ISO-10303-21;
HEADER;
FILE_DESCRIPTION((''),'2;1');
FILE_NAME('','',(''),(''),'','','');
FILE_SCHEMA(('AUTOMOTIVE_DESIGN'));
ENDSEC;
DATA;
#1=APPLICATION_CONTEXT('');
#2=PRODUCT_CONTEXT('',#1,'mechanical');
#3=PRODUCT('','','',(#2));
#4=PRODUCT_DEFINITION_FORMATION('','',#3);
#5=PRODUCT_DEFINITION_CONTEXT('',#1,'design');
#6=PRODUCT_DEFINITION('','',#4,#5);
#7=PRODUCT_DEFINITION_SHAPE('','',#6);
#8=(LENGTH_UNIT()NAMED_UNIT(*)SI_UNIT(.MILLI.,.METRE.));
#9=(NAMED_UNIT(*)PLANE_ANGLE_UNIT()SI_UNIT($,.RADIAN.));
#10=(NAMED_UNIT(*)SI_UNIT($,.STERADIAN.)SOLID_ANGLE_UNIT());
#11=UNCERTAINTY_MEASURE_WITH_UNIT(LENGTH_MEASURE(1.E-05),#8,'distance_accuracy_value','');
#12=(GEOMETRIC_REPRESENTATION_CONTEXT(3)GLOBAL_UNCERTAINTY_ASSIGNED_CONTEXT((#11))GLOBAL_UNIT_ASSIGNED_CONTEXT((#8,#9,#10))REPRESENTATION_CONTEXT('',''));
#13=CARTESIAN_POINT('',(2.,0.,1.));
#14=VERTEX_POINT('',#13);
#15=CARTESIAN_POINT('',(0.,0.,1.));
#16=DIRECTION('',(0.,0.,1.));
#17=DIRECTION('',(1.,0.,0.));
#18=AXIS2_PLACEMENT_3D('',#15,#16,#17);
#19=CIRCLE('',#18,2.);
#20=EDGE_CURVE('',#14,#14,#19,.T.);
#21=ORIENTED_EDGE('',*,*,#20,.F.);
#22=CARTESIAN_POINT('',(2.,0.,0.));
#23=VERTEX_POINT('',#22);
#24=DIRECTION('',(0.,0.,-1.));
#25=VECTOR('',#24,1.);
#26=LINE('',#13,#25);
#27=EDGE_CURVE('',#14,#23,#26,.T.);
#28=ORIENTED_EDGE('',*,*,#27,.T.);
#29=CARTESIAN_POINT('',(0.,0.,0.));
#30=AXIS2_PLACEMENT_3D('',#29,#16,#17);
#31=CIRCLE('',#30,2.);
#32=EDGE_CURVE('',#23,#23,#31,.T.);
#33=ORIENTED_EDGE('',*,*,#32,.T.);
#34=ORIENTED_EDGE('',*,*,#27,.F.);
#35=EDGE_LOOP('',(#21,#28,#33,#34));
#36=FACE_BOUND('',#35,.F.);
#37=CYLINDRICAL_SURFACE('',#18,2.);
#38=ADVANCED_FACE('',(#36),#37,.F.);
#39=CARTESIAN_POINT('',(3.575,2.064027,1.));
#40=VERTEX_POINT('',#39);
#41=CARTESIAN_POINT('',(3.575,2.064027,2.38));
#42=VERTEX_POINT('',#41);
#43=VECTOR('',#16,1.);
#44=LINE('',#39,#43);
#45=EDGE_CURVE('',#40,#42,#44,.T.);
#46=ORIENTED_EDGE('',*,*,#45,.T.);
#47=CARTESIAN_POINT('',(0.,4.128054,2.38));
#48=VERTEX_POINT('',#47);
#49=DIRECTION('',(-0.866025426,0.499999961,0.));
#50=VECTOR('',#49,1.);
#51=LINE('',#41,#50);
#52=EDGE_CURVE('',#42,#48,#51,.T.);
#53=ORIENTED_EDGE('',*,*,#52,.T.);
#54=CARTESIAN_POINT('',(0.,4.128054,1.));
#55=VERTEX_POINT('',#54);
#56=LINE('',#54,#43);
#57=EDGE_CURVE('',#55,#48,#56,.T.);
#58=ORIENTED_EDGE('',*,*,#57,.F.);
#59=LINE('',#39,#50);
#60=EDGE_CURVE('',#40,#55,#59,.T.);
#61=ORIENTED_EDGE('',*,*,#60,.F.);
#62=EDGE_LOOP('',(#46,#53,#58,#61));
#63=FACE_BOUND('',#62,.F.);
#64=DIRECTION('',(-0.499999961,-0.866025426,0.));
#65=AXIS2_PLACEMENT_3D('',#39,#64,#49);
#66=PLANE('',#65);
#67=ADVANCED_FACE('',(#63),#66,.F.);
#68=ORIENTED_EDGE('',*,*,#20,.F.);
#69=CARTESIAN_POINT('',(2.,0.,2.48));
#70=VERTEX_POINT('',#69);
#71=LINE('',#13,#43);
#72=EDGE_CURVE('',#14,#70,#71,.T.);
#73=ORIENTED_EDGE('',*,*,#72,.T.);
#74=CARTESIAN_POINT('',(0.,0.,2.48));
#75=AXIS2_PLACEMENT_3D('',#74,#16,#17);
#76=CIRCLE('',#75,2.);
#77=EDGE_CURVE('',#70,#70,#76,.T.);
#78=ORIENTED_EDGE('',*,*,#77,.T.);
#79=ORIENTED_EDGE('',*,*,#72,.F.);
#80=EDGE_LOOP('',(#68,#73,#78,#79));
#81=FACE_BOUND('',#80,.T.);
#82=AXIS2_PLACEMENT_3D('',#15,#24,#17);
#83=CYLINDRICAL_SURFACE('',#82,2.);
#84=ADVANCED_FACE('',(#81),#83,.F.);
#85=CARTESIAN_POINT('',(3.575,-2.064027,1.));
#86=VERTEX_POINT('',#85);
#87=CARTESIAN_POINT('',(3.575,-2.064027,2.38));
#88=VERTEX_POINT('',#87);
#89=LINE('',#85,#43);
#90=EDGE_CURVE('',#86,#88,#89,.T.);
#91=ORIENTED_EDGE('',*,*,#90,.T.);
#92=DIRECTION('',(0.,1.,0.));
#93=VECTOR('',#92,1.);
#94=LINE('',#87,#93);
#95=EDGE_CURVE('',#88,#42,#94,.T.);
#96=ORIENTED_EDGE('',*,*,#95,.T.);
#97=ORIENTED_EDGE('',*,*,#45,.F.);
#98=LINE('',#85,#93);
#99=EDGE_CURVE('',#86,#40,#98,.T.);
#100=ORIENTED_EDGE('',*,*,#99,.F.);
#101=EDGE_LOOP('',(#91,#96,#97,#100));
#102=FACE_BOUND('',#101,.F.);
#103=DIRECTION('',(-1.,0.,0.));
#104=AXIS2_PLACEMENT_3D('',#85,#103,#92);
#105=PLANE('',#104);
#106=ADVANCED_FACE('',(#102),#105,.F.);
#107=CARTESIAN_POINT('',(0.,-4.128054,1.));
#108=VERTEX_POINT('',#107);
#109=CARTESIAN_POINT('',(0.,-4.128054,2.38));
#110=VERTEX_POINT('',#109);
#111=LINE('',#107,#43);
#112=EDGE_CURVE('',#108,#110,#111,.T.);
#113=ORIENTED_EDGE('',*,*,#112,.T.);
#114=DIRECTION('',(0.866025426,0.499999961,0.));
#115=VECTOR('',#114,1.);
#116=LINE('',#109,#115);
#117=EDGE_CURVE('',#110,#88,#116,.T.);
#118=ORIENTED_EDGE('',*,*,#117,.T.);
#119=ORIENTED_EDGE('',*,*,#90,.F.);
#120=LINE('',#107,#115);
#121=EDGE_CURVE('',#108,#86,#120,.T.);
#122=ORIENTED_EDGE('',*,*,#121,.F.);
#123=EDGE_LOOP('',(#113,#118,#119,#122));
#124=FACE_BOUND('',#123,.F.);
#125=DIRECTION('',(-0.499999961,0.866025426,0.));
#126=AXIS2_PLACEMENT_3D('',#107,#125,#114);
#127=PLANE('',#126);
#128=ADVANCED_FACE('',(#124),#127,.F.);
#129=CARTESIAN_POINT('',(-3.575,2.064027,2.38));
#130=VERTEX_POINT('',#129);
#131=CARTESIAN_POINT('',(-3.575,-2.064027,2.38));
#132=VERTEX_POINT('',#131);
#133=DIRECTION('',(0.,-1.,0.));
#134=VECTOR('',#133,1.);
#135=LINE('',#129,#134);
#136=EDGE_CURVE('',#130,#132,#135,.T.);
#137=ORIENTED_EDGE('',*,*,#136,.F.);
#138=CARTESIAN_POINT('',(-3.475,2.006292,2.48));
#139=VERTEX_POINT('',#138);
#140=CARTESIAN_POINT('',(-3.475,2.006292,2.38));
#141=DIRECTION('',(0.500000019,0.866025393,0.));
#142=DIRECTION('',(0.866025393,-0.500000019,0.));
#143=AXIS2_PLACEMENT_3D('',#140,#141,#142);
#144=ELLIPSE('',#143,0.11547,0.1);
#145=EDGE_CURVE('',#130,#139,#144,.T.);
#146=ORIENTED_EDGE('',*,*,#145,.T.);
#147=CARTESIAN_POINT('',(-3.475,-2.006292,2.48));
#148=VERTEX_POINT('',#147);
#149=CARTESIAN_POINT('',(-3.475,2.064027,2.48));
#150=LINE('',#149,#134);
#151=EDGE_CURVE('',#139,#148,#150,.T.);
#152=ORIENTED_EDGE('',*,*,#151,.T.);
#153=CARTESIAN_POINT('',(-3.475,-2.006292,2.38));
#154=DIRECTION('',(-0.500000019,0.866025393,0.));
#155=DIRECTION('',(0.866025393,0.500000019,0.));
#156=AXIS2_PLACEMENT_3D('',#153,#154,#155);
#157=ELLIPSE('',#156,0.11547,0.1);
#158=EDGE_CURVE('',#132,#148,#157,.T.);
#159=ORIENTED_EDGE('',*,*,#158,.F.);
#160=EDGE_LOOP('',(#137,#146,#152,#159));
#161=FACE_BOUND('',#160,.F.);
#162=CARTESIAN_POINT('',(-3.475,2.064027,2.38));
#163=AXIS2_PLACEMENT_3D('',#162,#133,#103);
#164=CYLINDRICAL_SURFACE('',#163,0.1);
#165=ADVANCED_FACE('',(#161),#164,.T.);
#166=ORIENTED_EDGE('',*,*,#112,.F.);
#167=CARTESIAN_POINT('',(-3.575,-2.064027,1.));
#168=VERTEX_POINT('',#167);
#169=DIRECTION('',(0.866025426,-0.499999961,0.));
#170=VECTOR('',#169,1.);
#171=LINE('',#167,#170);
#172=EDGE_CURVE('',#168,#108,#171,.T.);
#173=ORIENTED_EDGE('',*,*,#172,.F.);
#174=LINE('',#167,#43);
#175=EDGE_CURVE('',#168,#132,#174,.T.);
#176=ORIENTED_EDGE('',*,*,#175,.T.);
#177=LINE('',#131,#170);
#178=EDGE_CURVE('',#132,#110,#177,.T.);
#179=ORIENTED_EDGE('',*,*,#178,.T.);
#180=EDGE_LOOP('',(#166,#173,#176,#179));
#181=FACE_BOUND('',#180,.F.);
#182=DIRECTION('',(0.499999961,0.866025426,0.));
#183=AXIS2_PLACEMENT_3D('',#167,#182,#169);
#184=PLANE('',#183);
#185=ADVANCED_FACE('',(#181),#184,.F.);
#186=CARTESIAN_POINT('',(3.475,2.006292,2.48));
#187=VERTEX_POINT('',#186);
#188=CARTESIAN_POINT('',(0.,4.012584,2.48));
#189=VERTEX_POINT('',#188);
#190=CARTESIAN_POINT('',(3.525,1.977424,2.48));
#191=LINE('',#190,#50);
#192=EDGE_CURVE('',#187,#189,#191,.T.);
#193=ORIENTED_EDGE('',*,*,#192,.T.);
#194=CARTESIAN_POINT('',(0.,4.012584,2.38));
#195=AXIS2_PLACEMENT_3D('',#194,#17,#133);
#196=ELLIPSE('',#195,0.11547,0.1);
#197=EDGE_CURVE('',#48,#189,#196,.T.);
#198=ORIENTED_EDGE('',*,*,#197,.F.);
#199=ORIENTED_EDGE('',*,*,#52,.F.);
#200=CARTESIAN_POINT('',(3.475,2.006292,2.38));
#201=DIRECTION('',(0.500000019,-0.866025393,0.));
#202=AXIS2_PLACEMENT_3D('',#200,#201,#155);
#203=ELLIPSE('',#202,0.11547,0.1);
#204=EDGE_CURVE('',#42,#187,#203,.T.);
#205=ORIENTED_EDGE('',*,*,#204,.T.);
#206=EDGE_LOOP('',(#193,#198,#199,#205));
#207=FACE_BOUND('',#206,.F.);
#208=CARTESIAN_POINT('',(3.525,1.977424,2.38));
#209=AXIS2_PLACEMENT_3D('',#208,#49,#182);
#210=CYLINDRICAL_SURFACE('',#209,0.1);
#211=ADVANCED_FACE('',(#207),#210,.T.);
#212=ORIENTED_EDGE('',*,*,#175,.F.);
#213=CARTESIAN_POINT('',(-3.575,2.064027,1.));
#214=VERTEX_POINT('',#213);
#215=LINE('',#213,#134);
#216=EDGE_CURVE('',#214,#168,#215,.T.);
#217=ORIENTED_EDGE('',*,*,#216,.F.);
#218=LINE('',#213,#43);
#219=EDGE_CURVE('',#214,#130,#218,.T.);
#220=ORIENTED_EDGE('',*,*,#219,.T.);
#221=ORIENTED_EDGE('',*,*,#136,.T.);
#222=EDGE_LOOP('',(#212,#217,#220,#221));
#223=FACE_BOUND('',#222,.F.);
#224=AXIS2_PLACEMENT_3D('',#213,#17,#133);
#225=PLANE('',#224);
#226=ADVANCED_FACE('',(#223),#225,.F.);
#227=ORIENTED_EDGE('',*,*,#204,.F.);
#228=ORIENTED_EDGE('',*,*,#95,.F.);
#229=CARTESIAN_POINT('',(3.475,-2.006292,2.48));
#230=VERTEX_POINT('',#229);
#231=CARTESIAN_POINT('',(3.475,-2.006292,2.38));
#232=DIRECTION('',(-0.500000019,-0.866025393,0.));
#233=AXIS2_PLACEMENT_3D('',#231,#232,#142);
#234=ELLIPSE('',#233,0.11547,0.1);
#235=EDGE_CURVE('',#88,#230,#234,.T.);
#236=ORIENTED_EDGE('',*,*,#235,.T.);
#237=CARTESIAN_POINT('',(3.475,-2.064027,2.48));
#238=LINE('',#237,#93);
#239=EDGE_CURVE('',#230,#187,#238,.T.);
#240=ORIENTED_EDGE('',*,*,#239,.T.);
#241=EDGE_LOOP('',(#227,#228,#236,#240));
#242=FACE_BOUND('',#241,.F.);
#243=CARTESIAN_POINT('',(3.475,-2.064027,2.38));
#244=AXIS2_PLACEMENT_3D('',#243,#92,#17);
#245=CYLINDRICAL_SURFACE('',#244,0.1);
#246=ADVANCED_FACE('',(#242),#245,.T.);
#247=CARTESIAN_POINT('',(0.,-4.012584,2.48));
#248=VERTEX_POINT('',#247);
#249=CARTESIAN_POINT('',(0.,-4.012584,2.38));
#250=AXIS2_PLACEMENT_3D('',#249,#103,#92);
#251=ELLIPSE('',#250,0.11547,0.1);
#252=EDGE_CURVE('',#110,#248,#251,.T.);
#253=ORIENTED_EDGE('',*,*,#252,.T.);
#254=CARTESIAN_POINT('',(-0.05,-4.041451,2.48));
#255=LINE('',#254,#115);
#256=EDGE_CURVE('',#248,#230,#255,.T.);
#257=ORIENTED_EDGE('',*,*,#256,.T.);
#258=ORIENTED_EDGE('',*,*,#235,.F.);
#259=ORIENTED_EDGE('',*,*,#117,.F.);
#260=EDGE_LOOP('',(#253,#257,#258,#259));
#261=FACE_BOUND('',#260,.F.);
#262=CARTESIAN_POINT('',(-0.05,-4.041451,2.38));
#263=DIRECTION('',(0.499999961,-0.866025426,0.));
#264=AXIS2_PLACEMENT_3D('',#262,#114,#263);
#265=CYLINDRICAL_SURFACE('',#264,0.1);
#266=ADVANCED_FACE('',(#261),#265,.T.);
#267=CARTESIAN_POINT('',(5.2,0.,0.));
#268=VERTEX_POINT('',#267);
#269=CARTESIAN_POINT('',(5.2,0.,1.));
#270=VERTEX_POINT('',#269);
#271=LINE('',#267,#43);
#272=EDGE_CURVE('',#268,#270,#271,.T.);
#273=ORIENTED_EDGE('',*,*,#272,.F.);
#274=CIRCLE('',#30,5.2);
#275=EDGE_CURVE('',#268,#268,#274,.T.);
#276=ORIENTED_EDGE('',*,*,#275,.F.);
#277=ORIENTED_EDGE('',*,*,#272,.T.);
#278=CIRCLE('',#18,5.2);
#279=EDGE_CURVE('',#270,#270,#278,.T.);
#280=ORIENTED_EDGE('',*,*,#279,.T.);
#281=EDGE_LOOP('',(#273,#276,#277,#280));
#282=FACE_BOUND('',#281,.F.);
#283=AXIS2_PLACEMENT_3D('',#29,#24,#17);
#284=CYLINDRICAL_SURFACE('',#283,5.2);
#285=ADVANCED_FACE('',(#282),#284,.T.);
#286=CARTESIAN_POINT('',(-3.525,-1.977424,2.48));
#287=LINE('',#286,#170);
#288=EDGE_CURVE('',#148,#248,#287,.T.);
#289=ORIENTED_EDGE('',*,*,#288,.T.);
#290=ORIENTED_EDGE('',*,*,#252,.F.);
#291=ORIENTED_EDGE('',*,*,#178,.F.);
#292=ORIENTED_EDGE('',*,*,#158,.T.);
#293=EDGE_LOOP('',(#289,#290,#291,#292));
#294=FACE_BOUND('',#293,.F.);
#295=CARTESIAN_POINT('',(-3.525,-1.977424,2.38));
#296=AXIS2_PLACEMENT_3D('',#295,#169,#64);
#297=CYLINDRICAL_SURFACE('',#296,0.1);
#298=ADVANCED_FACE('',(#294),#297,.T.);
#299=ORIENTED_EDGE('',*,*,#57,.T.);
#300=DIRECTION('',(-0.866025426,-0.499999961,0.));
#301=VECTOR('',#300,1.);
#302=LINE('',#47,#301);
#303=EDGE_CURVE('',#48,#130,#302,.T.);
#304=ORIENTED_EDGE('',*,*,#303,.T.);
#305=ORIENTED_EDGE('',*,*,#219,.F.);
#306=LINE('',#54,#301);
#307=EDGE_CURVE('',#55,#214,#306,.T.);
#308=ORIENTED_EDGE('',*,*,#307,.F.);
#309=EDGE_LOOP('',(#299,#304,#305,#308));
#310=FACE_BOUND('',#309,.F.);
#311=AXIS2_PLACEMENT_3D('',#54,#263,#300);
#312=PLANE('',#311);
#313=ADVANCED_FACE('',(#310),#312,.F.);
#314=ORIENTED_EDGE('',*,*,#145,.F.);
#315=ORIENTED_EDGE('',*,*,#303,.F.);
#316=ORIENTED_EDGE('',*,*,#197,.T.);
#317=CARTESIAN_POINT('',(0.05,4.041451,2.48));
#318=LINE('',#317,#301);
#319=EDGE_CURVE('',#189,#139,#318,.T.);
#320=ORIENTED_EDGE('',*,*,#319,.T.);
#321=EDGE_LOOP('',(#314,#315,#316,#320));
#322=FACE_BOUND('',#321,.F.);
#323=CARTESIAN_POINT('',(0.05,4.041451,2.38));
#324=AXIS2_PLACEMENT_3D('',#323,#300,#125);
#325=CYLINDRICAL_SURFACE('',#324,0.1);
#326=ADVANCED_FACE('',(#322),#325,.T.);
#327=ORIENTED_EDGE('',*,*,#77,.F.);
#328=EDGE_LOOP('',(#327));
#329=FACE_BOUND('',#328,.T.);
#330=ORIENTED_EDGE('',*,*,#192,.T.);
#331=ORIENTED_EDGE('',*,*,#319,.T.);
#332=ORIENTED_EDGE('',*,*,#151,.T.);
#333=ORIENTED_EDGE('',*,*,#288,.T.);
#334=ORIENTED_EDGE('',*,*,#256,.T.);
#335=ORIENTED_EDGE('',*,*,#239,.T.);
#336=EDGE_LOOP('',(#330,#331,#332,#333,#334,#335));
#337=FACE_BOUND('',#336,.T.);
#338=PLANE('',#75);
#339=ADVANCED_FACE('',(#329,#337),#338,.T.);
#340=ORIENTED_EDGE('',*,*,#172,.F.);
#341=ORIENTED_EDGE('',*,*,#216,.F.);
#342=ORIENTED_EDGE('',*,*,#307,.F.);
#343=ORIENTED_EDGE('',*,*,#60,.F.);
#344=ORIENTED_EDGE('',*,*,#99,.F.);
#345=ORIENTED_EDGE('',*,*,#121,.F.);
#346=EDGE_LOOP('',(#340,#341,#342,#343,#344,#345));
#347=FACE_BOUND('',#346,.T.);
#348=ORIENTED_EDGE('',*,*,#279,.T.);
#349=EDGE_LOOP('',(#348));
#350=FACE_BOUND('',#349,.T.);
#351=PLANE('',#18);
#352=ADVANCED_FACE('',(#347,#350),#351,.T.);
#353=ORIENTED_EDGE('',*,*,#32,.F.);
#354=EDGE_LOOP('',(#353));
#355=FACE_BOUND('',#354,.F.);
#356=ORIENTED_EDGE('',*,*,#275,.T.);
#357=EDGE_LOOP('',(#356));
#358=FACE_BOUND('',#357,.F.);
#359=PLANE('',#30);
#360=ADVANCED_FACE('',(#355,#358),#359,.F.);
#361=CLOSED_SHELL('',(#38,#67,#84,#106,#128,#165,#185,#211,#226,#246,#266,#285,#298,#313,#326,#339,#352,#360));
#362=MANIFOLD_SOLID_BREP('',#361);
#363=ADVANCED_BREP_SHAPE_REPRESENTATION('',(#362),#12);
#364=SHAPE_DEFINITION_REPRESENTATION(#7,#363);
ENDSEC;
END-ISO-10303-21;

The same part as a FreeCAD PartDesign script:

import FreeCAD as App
import Part
import Sketcher

V = App.Vector
Q = App.Units.Quantity


def edges_at(feature, points):
    """Names of the edges that pass closest to the given points."""
    edges = feature.Shape.Edges
    near = lambda p: min(range(len(edges)), key=lambda i: edges[i].distToShape(Part.Vertex(*p))[0])
    return sorted({f"Edge{near(p) + 1}" for p in points})

doc = App.newDocument("Part")
body = doc.addObject("PartDesign::Body", "Body")

# Sketch on XY plane
sketch1 = body.newObject("Sketcher::SketchObject", "Sketch")
sketch1.AttachmentSupport = (doc.getObject("XY_Plane"), [""])
sketch1.MapMode = "FlatFace"
sketch1.addGeometry(Part.Circle(V(0, 0, 0), V(0, 0, 1), 5), False)
sketch1.addConstraint([
    Sketcher.Constraint("Coincident", 0, 3, -1, 1),
    Sketcher.Constraint("Diameter", 0, 10.4),
])
pad1 = body.newObject("PartDesign::Pad", "Pad")
pad1.Profile = sketch1
pad1.Length = 1

# Sketch on XY plane
sketch2 = body.newObject("Sketcher::SketchObject", "Sketch001")
sketch2.AttachmentSupport = (doc.getObject("XY_Plane"), [""])
sketch2.MapMode = "FlatFace"
sketch2.AttachmentOffset = App.Placement(V(0, 0, 1), App.Rotation())
sketch2.addGeometry([
    Part.LineSegment(V(3.6, -2.1, 0), V(3.6, 2.1, 0)),  # 0
    Part.LineSegment(V(3.6, 2.1, 0), V(0, 4.1, 0)),  # 1
    Part.LineSegment(V(0, 4.1, 0), V(-3.6, 2.1, 0)),  # 2
    Part.LineSegment(V(-3.6, 2.1, 0), V(-3.6, -2.1, 0)),  # 3
    Part.LineSegment(V(-3.6, -2.1, 0), V(0, -4.1, 0)),  # 4
    Part.LineSegment(V(0, -4.1, 0), V(3.6, -2.1, 0)),  # 5
    Part.Circle(V(0, 0, 0), V(0, 0, 1), 2),  # 6
], False)
sketch2.addConstraint([
    Sketcher.Constraint("Coincident", 0, 2, 1, 1),
    Sketcher.Constraint("Coincident", 1, 2, 2, 1),
    Sketcher.Constraint("Coincident", 2, 2, 3, 1),
    Sketcher.Constraint("Coincident", 3, 2, 4, 1),
    Sketcher.Constraint("Coincident", 4, 2, 5, 1),
    Sketcher.Constraint("Coincident", 5, 2, 0, 1),
    Sketcher.Constraint("Vertical", 0),
    Sketcher.Constraint("Vertical", 3),
    Sketcher.Constraint("Coincident", 6, 3, -1, 1),
    Sketcher.Constraint("Symmetric", 0, 2, 3, 2, -1, 1),
    Sketcher.Constraint("Symmetric", 1, 2, 4, 2, -1, 1),
    Sketcher.Constraint("PointOnObject", 1, 2, -2),
    Sketcher.Constraint("Parallel", 2, 5),
    Sketcher.Constraint("Horizontal", 0, 2, 2, 2),
    Sketcher.Constraint("Diameter", 6, 4.0),
    Sketcher.Constraint("Angle", 1, Q("150.000003 deg")),
    Sketcher.Constraint("DistanceX", 2, 2, 0, 2, 7.15),
    Sketcher.Constraint("DistanceY", 0, 1, 0, 2, 4.128054),
])
pad2 = body.newObject("PartDesign::Pad", "Pad001")
pad2.Profile = sketch2
pad2.Length = 1.48

# Sketch on XY plane
sketch3 = body.newObject("Sketcher::SketchObject", "Sketch002")
sketch3.AttachmentSupport = (doc.getObject("XY_Plane"), [""])
sketch3.MapMode = "FlatFace"
sketch3.AttachmentOffset = App.Placement(V(0, 0, 1), App.Rotation())
sketch3.addGeometry(Part.Circle(V(0, 0, 0), V(0, 0, 1), 2), False)
sketch3.addConstraint([
    Sketcher.Constraint("Coincident", 0, 3, -1, 1),
    Sketcher.Constraint("Diameter", 0, 4.0),
])
pocket1 = body.newObject("PartDesign::Pocket", "Pocket")
pocket1.Profile = sketch3
pocket1.Length = 25
pocket2 = body.newObject("PartDesign::Pocket", "Pocket001")
pocket2.Profile = sketch3
pocket2.Length = 25
doc.recompute()

fillet = body.newObject("PartDesign::Fillet", "Fillet")
fillet.Base = (pocket2, edges_at(pocket2, [
    (1.788, -3.096, 2.48),
    (3.575, 0, 2.48),
    (-1.788, -3.096, 2.48),
    (-3.575, 0, 2.48),
    (-1.788, 3.096, 2.48),
    (1.788, 3.096, 2.48),
]))
fillet.Radius = 0.1

doc.recompute()
